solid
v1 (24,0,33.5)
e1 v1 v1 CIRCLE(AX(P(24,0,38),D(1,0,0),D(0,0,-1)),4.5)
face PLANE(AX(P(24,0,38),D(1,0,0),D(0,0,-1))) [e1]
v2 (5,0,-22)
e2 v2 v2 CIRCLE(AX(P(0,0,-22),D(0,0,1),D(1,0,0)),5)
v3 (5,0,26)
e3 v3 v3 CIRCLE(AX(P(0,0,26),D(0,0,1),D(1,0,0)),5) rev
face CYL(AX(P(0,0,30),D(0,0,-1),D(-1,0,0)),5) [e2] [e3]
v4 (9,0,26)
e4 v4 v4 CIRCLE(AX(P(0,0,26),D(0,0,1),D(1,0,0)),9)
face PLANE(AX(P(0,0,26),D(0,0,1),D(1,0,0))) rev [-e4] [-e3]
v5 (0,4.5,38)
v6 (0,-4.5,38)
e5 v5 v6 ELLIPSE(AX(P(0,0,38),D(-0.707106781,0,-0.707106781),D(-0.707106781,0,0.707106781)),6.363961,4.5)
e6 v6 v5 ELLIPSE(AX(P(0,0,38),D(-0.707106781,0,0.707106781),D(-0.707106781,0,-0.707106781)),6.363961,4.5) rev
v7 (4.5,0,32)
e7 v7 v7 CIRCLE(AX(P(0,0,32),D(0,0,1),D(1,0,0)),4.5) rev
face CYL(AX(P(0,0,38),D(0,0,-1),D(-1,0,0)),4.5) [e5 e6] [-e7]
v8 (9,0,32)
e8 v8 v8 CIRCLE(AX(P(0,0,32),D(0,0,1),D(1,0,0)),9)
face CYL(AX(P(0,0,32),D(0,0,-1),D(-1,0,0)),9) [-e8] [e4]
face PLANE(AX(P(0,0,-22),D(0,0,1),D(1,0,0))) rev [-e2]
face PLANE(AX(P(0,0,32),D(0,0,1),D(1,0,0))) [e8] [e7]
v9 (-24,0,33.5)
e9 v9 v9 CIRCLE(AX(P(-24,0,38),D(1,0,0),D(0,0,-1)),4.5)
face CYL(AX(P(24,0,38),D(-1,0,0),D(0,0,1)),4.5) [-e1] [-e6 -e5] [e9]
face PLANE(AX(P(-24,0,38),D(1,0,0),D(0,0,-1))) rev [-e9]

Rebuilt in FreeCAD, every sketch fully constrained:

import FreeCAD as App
import Part
import Sketcher

V = App.Vector
Q = App.Units.Quantity

doc = App.newDocument("Part")
body = doc.addObject("PartDesign::Body", "Body")

# Sketch on XY plane
sketch1 = doc.addObject("Sketcher::SketchObject", "Sketch")
body.addObject(sketch1)
sketch1.AttachmentSupport = (doc.XY_Plane, [""])
sketch1.MapMode = "FlatFace"
sketch1.AttachmentOffset = App.Placement(V(0, 0, -22), App.Rotation())
sketch1.addGeometry(Part.Circle(V(0, 0, 0), V(0, 0, 1), 5), False)
sketch1.addConstraint([
    Sketcher.Constraint("Coincident", 0, 3, -1, 1),
    Sketcher.Constraint("Diameter", 0, Q("10 mm")),
])
pad1 = doc.addObject("PartDesign::Pad", "Pad")
body.addObject(pad1)
pad1.Profile = sketch1
pad1.Length = 52
body2 = doc.addObject("PartDesign::Body", "Body001")

# Sketch on XY plane
sketch2 = doc.addObject("Sketcher::SketchObject", "Sketch001")
body2.addObject(sketch2)
sketch2.AttachmentSupport = (doc.getObject("XY_Plane001"), [""])
sketch2.MapMode = "FlatFace"
sketch2.AttachmentOffset = App.Placement(V(0, 0, 26), App.Rotation())
sketch2.addGeometry(Part.Circle(V(0, 0, 0), V(0, 0, 1), 9), False)
sketch2.addConstraint([
    Sketcher.Constraint("Coincident", 0, 3, -1, 1),
    Sketcher.Constraint("Diameter", 0, Q("18 mm")),
])
pad2 = doc.addObject("PartDesign::Pad", "Pad001")
body2.addObject(pad2)
pad2.Profile = sketch2
pad2.Length = 6
body3 = doc.addObject("PartDesign::Body", "Body002")

# Sketch on XY plane
sketch3 = doc.addObject("Sketcher::SketchObject", "Sketch002")
body3.addObject(sketch3)
sketch3.AttachmentSupport = (doc.getObject("XY_Plane002"), [""])
sketch3.MapMode = "FlatFace"
sketch3.addGeometry(Part.Circle(V(0, 0, 0), V(0, 0, 1), 4.5), False)
sketch3.addConstraint([
    Sketcher.Constraint("Coincident", 0, 3, -1, 1),
    Sketcher.Constraint("Diameter", 0, Q("9 mm")),
])
pad3 = doc.addObject("PartDesign::Pad", "Pad002")
body3.addObject(pad3)
pad3.Profile = sketch3
pad3.Length = 48
body4 = doc.addObject("PartDesign::Body", "Body003")
doc.recompute()

body3.Placement = App.Placement(V(0, 0, 0), App.Rotation(V(0, 1, 0), 90))
boolean = doc.addObject("PartDesign::Boolean", "Boolean")
body4.addObject(boolean)
boolean.Type = "Fuse"
boolean.addObjects([body3])
body5 = doc.addObject("PartDesign::Body", "Body004")
doc.recompute()

body4.Placement = App.Placement(V(-24, 0, 38), App.Rotation(V(0, 0, 1), 0))
boolean2 = doc.addObject("PartDesign::Boolean", "Boolean001")
body5.addObject(boolean2)
boolean2.Type = "Fuse"
boolean2.addObjects([body4])
body6 = doc.addObject("PartDesign::Body", "Body005")

# Sketch on XY plane
sketch4 = doc.addObject("Sketcher::SketchObject", "Sketch003")
body6.addObject(sketch4)
sketch4.AttachmentSupport = (doc.getObject("XY_Plane005"), [""])
sketch4.MapMode = "FlatFace"
sketch4.AttachmentOffset = App.Placement(V(0, 0, 30), App.Rotation())
sketch4.addGeometry(Part.Circle(V(0, 0, 0), V(0, 0, 1), 4.5), False)
sketch4.addConstraint([
    Sketcher.Constraint("Coincident", 0, 3, -1, 1),
    Sketcher.Constraint("Diameter", 0, Q("9 mm")),
])
pad4 = doc.addObject("PartDesign::Pad", "Pad003")
body6.addObject(pad4)
pad4.Profile = sketch4
pad4.Length = 8
body5.AllowCompound = True
doc.recompute()

boolean3 = doc.addObject("PartDesign::Boolean", "Boolean002")
body5.addObject(boolean3)
boolean3.Type = "Fuse"
boolean3.addObjects([body2])
doc.recompute()

boolean4 = doc.addObject("PartDesign::Boolean", "Boolean003")
body5.addObject(boolean4)
boolean4.Type = "Fuse"
boolean4.addObjects([body6])
doc.recompute()

boolean5 = doc.addObject("PartDesign::Boolean", "Boolean004")
body5.addObject(boolean5)
boolean5.Type = "Fuse"
boolean5.addObjects([body])

doc.recompute()
